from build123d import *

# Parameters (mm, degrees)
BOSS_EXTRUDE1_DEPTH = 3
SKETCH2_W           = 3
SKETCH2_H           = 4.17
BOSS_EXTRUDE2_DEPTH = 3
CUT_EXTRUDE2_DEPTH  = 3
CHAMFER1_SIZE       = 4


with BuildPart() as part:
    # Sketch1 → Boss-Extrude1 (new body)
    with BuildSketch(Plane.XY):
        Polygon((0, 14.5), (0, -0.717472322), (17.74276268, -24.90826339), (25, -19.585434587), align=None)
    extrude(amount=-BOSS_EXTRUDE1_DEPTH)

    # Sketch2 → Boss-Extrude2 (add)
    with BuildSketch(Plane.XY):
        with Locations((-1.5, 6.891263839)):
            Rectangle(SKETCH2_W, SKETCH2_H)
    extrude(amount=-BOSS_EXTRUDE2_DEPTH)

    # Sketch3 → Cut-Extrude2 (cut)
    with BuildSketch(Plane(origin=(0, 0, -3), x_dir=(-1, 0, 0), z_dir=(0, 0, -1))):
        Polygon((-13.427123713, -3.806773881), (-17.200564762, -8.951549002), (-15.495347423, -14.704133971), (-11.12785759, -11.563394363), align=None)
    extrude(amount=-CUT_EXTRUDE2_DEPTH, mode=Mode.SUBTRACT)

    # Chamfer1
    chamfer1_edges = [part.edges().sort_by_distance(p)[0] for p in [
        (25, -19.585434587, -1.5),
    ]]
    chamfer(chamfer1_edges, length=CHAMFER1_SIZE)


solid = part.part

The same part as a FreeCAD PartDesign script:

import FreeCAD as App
import Part
import Sketcher
from FreeCAD import Vector


def edges_at(feature, points):
    """Names of the edges that pass closest to the given points."""
    edges = feature.Shape.Edges
    near = lambda p: min(range(len(edges)), key=lambda i: edges[i].distToShape(Part.Vertex(*p))[0])
    return sorted({f"Edge{near(p) + 1}" for p in points})

doc = App.newDocument("Part")
params = doc.addObject("Spreadsheet::Sheet", "Params")
for row, (alias, value) in enumerate([
    ("sketch1_length", "30 mm"),
    ("sketch1_length2", "9 mm"),
    ("pad1_length", "3 mm"),
    ("sketch2_width", "3 mm"),
    ("sketch2_height", "4.17 mm"),
    ("pad2_length", "3 mm"),
    ("sketch3_length", "6 mm"),
    ("pocket1_length", "3 mm"),
    ("chamfer_size", "4 mm"),
], start=1):
    params.set(f"A{row}", alias)
    params.set(f"B{row}", "=" + value)
    params.setAlias(f"B{row}", alias)

body = doc.addObject("PartDesign::Body", "Body")

# Sketch on XY plane
sketch1 = body.newObject("Sketcher::SketchObject", "Sketch")
sketch1.AttachmentSupport = (doc.getObject("XY_Plane"), [""])
sketch1.MapMode = "FlatFace"
sketch1.addGeometry([
    Part.LineSegment(Vector(0, 14, 0), Vector(0, -1, 0)),
    Part.LineSegment(Vector(0, -1, 0), Vector(18, -25, 0)),
    Part.LineSegment(Vector(18, -25, 0), Vector(25, -20, 0)),
    Part.LineSegment(Vector(25, -20, 0), Vector(0, 14, 0)),
], False)
sketch1.addConstraint([
    Sketcher.Constraint("Coincident", 0, 2, 1, 1),
    Sketcher.Constraint("Coincident", 1, 2, 2, 1),
    Sketcher.Constraint("Coincident", 2, 2, 3, 1),
    Sketcher.Constraint("Coincident", 3, 2, 0, 1),
    Sketcher.Constraint("Vertical", 0),
    Sketcher.Constraint("PointOnObject", 0, 2, -2),
    Sketcher.Constraint("Perpendicular", 1, 2),
    Sketcher.Constraint("Perpendicular", 2, 3),
    Sketcher.Constraint("Distance", 1, 30.0),
    Sketcher.Constraint("Distance", 2, 9.0),
    Sketcher.Constraint("DistanceX", -1, 1, 2, 2, 25.0),
    Sketcher.Constraint("DistanceY", -1, 1, 3, 2, 14.5),
])
sketch1.setExpression("Constraints[8]", "Params.sketch1_length")
sketch1.setExpression("Constraints[9]", "Params.sketch1_length2")
pad1 = body.newObject("PartDesign::Pad", "Pad")
pad1.Profile = sketch1
pad1.setExpression("Length", "Params.pad1_length")
pad1.Reversed = True

# Sketch on XY plane
sketch2 = body.newObject("Sketcher::SketchObject", "Sketch001")
sketch2.AttachmentSupport = (doc.getObject("XY_Plane"), [""])
sketch2.MapMode = "FlatFace"
sketch2.addGeometry([
    Part.LineSegment(Vector(-3, 9, 0), Vector(-3, 4.8, 0)),
    Part.LineSegment(Vector(-3, 4.8, 0), Vector(0, 4.8, 0)),
    Part.LineSegment(Vector(0, 4.8, 0), Vector(0, 9, 0)),
    Part.LineSegment(Vector(0, 9, 0), Vector(-3, 9, 0)),
], False)
sketch2.addConstraint([
    Sketcher.Constraint("Coincident", 0, 2, 1, 1),
    Sketcher.Constraint("Coincident", 1, 2, 2, 1),
    Sketcher.Constraint("Coincident", 2, 2, 3, 1),
    Sketcher.Constraint("Coincident", 3, 2, 0, 1),
    Sketcher.Constraint("Vertical", 0),
    Sketcher.Constraint("Horizontal", 1),
    Sketcher.Constraint("Vertical", 2),
    Sketcher.Constraint("Horizontal", 3),
    Sketcher.Constraint("PointOnObject", 1, 2, -2),
    Sketcher.Constraint("DistanceX", 1, 1, 1, 2, 3.0),
    Sketcher.Constraint("DistanceY", 0, 2, 0, 1, 4.17),
    Sketcher.Constraint("DistanceY", -1, 1, 0, 2, 4.806264),
])
sketch2.setExpression("Constraints[9]", "Params.sketch2_width")
sketch2.setExpression("Constraints[10]", "Params.sketch2_height")
pad2 = body.newObject("PartDesign::Pad", "Pad001")
pad2.Profile = sketch2
pad2.setExpression("Length", "Params.pad2_length")
pad2.Reversed = True

# Sketch on XY plane
sketch3 = body.newObject("Sketcher::SketchObject", "Sketch002")
sketch3.AttachmentSupport = (doc.getObject("XY_Plane"), [""])
sketch3.MapMode = "FlatFace"
sketch3.AttachmentOffset = App.Placement(Vector(0, 0, -3), App.Rotation())
sketch3.addGeometry([
    Part.LineSegment(Vector(13, -4, 0), Vector(17, -9, 0)),
    Part.LineSegment(Vector(17, -9, 0), Vector(15, -15, 0)),
    Part.LineSegment(Vector(15, -15, 0), Vector(11, -12, 0)),
    Part.LineSegment(Vector(11, -12, 0), Vector(13, -4, 0)),
], False)
sketch3.addConstraint([
    Sketcher.Constraint("Coincident", 0, 2, 1, 1),
    Sketcher.Constraint("Coincident", 1, 2, 2, 1),
    Sketcher.Constraint("Coincident", 2, 2, 3, 1),
    Sketcher.Constraint("Coincident", 3, 2, 0, 1),
    Sketcher.Constraint("Parallel", 1, 3),
    Sketcher.Constraint("Distance", 1, 6.0),
    Sketcher.Constraint("Distance", 0, 6.380248),
    Sketcher.Constraint("DistanceY", 0, 2, -1, 1, 8.951549),
    Sketcher.Constraint("DistanceX", 2, 2, 1, 2, 4.36749),
    Sketcher.Constraint("DistanceY", 1, 2, 2, 2, 3.14074),
    Sketcher.Constraint("DistanceX", 3, 2, 0, 2, 3.773441),
    Sketcher.Constraint("DistanceX", -1, 1, 0, 2, 17.200565),
])
sketch3.setExpression("Constraints[5]", "Params.sketch3_length")
pocket1 = body.newObject("PartDesign::Pocket", "Pocket")
pocket1.Profile = sketch3
pocket1.setExpression("Length", "Params.pocket1_length")
pocket1.Reversed = True
doc.recompute()

chamfer = body.newObject("PartDesign::Chamfer", "Chamfer")
chamfer.Base = (pocket1, edges_at(pocket1, [(25, -19.585, -1.5)]))
chamfer.setExpression("Size", "Params.chamfer_size")

doc.recompute()
